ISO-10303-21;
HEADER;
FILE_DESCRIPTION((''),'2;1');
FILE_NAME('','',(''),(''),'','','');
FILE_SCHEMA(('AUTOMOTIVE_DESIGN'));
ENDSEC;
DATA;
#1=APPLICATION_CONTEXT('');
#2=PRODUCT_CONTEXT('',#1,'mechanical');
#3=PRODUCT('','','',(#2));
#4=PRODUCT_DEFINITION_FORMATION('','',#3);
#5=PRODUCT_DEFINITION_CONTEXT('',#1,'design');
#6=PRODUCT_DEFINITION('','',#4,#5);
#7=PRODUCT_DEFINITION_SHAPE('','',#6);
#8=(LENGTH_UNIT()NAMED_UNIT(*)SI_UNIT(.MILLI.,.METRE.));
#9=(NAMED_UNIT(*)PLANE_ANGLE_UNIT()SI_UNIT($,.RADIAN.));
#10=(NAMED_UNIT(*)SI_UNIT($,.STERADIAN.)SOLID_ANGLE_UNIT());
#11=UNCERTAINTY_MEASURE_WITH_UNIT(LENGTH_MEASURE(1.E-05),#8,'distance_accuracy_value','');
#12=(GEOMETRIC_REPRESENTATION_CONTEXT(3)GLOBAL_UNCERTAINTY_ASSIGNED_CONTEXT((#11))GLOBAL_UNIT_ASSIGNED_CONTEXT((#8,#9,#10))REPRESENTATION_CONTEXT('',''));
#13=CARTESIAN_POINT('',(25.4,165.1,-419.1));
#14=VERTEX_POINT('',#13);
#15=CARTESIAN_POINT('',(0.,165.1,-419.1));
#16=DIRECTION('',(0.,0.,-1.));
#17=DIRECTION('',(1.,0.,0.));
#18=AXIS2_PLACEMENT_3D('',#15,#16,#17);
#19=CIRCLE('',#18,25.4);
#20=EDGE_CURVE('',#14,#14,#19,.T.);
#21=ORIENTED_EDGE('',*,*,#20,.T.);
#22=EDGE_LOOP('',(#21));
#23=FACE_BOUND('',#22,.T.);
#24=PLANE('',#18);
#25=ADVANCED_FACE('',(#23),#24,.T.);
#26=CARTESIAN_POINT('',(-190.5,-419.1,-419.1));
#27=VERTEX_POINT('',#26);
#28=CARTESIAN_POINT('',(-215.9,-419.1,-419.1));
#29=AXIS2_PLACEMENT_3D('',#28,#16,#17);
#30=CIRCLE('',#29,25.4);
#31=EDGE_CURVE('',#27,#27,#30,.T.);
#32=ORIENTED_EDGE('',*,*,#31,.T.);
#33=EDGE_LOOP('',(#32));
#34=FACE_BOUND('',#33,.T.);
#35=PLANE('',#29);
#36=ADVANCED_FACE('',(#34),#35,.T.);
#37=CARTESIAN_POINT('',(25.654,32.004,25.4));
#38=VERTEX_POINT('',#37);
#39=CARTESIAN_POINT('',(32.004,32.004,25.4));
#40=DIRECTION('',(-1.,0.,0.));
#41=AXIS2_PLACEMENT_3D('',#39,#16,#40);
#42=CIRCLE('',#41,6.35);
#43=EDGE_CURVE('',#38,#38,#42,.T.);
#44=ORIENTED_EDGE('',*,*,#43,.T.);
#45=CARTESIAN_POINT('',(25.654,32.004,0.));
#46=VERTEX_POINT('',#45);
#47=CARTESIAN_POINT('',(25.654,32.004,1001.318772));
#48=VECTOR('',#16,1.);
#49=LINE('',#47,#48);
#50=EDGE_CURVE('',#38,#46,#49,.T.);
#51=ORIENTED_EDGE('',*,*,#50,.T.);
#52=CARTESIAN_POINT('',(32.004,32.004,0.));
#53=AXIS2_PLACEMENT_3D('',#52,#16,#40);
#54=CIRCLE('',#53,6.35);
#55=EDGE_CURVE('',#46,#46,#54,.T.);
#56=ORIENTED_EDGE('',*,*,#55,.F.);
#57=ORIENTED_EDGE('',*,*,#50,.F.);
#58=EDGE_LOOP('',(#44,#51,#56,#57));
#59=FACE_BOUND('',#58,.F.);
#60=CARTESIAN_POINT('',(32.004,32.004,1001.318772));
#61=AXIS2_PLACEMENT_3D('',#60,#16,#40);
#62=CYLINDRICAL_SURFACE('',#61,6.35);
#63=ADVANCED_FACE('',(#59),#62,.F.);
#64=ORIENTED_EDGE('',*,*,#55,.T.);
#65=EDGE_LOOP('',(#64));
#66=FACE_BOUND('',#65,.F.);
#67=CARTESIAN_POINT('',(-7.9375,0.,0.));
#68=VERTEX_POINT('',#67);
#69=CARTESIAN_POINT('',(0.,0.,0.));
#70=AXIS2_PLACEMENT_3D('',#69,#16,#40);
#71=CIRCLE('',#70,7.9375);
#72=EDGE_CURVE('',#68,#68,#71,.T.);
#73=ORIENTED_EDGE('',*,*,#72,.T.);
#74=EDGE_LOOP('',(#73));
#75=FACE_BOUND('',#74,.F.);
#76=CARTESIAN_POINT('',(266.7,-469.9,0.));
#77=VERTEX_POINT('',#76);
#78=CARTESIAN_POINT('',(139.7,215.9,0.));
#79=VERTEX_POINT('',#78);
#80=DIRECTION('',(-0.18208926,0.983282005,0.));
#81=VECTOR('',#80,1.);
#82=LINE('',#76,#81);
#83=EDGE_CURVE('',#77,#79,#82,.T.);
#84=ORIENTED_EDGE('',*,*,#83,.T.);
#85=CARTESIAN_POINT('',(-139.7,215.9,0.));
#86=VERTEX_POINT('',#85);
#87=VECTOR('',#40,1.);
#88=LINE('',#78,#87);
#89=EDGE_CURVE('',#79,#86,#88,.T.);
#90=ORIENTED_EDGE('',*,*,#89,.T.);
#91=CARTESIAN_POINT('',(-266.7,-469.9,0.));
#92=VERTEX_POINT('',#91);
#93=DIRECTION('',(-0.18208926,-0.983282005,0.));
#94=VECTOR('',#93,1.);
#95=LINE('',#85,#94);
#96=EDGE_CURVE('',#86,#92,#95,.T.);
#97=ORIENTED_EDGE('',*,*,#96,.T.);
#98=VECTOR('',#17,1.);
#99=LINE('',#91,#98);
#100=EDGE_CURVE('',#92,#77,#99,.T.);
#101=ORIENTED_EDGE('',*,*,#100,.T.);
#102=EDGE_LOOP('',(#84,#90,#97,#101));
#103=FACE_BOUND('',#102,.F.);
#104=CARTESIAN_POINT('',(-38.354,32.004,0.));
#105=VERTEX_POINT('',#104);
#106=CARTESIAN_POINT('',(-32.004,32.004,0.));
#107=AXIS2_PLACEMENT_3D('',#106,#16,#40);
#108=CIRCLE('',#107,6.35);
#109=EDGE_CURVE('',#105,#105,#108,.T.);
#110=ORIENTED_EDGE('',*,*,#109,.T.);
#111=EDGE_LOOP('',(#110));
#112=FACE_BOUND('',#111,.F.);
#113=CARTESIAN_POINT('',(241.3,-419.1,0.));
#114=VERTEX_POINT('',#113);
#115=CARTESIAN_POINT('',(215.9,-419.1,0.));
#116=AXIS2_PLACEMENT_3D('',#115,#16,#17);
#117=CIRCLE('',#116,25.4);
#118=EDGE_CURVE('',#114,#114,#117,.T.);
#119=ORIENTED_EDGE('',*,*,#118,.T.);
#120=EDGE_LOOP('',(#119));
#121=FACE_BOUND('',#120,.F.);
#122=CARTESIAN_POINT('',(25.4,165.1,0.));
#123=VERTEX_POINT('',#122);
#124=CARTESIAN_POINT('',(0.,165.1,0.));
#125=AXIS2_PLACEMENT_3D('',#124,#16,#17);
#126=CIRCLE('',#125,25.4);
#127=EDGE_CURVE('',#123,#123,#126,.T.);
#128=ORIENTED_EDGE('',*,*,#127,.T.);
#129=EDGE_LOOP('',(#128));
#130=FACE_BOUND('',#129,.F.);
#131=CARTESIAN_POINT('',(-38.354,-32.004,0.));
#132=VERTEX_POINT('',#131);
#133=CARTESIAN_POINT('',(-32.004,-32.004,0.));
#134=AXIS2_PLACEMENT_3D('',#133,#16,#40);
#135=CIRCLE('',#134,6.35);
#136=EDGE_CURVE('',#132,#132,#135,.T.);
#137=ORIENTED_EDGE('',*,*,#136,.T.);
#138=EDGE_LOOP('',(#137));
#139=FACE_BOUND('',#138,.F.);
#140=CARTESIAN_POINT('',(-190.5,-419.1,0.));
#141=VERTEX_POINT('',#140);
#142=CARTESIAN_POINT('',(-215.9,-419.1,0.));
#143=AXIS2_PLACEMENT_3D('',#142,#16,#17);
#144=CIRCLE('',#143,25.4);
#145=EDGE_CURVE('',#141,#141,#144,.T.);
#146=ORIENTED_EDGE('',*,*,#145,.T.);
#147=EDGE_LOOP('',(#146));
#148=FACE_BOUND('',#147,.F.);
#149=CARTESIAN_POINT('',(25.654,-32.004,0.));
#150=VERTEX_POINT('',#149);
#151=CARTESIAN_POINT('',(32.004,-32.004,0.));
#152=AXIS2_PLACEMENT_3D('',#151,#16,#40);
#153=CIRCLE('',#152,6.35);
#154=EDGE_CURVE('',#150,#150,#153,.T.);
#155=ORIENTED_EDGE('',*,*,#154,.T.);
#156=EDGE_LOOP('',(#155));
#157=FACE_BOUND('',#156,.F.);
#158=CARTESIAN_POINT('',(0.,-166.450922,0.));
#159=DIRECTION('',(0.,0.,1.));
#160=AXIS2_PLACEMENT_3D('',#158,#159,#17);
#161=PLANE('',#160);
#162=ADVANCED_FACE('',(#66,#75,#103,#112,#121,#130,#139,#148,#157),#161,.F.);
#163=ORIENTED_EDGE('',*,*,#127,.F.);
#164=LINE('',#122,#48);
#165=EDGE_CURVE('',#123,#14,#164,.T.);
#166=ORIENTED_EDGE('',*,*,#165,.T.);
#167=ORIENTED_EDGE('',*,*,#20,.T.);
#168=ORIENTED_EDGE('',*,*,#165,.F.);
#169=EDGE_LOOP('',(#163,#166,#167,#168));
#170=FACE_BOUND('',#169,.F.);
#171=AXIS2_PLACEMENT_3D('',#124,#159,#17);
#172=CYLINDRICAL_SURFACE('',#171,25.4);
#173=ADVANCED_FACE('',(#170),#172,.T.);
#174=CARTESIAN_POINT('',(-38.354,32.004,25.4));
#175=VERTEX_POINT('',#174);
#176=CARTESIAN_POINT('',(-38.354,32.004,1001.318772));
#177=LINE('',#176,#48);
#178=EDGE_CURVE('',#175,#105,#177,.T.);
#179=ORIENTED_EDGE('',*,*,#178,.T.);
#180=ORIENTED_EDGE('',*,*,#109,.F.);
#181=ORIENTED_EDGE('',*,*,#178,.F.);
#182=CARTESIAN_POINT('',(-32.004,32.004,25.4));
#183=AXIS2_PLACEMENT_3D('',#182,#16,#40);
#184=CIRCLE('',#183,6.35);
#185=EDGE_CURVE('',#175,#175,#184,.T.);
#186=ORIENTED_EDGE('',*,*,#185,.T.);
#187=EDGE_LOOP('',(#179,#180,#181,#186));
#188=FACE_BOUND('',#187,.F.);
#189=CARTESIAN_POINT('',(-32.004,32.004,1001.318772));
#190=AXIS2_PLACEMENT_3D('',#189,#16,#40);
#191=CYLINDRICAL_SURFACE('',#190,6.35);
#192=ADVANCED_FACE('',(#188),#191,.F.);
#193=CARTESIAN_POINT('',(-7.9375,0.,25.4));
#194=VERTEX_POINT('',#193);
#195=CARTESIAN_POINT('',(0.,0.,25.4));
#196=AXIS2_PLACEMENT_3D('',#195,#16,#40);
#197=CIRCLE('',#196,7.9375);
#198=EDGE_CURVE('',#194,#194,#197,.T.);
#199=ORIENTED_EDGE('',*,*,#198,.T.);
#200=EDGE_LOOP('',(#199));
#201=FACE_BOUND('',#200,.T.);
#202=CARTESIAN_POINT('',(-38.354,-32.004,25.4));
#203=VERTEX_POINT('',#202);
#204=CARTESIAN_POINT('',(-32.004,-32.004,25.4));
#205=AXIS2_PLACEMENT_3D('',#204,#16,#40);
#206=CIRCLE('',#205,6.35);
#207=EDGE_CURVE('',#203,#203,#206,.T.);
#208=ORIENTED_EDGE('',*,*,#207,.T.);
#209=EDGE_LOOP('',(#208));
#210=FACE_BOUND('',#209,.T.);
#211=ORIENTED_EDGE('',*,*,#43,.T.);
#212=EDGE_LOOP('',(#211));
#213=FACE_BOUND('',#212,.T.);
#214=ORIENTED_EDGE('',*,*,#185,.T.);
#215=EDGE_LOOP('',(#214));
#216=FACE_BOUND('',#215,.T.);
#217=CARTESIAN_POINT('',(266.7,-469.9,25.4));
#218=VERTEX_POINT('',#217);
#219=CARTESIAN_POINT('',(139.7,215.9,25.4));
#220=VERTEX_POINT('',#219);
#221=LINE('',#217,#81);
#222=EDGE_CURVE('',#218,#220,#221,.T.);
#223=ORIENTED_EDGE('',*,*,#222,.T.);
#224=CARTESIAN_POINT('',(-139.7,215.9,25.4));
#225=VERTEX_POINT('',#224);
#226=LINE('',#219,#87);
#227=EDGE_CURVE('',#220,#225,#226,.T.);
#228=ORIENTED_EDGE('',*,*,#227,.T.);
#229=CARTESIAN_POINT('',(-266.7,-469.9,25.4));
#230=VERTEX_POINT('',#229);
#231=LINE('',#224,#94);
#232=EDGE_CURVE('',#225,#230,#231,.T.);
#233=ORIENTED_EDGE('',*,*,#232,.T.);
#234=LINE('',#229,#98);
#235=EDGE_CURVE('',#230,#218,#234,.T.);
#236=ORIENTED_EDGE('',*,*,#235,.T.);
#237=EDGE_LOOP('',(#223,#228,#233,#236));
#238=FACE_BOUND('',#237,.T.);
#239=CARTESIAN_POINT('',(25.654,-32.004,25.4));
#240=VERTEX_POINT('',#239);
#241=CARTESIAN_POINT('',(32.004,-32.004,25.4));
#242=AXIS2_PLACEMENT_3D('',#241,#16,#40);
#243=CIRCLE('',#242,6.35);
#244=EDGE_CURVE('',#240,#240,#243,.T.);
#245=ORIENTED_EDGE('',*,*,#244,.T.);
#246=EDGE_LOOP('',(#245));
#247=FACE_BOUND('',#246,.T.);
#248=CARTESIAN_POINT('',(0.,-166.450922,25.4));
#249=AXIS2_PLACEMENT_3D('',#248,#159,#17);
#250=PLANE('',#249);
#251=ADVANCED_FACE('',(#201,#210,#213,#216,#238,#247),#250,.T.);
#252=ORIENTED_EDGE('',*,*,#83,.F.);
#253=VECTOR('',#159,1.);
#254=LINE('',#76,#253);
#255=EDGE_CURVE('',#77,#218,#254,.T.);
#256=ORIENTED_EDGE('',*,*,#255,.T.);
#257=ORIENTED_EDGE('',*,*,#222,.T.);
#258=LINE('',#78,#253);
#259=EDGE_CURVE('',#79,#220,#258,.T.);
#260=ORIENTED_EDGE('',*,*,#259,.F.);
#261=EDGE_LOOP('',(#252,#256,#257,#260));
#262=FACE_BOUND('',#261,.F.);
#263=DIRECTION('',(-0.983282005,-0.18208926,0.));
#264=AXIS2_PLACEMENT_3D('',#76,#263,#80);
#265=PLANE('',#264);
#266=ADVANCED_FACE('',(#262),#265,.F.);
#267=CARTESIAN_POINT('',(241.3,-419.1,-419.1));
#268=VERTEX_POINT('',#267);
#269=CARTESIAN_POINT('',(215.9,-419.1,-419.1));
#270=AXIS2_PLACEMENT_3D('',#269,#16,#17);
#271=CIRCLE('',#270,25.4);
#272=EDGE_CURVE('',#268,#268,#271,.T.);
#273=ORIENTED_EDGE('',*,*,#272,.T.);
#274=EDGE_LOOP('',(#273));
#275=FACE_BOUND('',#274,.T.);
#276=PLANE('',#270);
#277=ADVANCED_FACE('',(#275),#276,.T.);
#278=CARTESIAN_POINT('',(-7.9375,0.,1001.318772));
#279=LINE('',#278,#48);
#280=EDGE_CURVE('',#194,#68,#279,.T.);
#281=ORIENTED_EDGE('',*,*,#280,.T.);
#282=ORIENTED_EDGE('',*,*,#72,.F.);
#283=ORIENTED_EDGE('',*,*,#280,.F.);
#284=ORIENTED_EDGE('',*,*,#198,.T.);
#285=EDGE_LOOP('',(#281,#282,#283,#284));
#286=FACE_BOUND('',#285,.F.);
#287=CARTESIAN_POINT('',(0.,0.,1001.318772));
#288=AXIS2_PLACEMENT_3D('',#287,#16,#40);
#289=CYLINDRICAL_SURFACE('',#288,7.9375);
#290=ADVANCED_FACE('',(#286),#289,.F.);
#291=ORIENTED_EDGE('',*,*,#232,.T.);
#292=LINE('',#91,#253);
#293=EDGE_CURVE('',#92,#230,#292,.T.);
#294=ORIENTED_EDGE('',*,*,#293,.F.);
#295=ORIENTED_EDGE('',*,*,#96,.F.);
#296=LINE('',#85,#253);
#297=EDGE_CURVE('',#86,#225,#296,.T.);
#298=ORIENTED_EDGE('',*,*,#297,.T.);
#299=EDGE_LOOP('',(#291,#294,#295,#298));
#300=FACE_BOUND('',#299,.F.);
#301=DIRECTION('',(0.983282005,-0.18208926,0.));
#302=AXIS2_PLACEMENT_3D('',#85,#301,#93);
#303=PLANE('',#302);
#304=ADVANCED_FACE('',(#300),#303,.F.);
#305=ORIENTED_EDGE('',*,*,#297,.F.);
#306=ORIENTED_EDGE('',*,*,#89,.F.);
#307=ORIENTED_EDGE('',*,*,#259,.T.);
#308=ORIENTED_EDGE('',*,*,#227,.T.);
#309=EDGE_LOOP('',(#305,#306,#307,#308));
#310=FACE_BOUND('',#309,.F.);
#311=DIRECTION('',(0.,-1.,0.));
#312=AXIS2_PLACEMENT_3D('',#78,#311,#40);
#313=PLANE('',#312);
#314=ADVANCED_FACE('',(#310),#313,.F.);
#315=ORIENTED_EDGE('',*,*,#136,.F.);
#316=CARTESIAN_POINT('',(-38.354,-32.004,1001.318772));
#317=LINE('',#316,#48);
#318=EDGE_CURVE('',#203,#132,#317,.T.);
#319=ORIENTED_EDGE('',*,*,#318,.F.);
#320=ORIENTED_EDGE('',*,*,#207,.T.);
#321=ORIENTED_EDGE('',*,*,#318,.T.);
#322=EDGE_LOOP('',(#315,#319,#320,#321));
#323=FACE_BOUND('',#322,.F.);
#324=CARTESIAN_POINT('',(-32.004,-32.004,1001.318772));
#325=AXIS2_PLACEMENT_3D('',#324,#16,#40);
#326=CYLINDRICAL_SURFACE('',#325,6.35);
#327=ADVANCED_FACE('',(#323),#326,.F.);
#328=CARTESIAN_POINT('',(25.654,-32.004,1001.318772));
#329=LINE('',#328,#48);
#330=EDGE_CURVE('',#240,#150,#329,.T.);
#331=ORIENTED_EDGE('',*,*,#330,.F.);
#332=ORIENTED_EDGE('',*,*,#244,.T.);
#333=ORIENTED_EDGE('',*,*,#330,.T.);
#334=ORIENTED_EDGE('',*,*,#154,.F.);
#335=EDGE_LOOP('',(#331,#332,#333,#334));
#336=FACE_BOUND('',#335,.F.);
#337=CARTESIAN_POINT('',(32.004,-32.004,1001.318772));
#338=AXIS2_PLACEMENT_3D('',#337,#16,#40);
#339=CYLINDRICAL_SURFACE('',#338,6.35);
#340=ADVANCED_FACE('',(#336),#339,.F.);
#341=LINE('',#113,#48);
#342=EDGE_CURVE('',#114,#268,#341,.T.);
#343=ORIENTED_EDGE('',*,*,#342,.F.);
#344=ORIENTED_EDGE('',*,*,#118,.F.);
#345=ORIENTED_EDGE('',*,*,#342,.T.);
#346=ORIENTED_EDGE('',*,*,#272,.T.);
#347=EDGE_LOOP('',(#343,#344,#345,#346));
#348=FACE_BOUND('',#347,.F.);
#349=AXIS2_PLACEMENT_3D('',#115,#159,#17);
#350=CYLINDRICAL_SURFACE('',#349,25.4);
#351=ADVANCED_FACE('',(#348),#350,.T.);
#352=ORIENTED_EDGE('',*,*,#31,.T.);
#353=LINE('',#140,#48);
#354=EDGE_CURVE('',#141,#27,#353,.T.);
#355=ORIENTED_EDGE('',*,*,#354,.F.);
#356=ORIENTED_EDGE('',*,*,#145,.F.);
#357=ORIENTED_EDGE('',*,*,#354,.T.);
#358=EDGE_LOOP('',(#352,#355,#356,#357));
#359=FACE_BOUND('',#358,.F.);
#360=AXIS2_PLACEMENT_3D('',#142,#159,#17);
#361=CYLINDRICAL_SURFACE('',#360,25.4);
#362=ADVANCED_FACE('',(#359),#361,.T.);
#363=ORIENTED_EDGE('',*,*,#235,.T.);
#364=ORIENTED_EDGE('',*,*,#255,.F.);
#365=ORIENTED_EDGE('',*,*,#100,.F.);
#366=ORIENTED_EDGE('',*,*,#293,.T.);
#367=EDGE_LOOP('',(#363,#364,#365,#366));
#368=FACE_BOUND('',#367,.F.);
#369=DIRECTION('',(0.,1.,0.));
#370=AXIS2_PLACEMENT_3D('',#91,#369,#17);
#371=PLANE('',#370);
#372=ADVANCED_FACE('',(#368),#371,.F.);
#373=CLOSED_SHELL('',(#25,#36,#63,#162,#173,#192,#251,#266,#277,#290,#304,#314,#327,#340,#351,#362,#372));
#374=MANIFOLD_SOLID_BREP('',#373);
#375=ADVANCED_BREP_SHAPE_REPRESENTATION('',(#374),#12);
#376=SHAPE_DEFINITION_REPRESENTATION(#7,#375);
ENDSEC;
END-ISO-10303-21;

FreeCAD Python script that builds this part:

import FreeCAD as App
import Part
import Sketcher
from FreeCAD import Vector
Q = App.Units.Quantity

doc = App.newDocument("Part")
body = doc.addObject("PartDesign::Body", "Body")

# Sketch on XY plane
sketch1 = body.newObject("Sketcher::SketchObject", "Sketch")
sketch1.AttachmentSupport = (doc.getObject("XY_Plane"), [""])
sketch1.MapMode = "FlatFace"
sketch1.addGeometry([
    Part.LineSegment(Vector(140, 216, 0), Vector(-140, 216, 0)),
    Part.LineSegment(Vector(-140, 216, 0), Vector(-267, -470, 0)),
    Part.LineSegment(Vector(-267, -470, 0), Vector(267, -470, 0)),
    Part.LineSegment(Vector(267, -470, 0), Vector(140, 216, 0)),
], False)
sketch1.addConstraint([
    Sketcher.Constraint("Coincident", 0, 2, 1, 1),
    Sketcher.Constraint("Coincident", 1, 2, 2, 1),
    Sketcher.Constraint("Coincident", 2, 2, 3, 1),
    Sketcher.Constraint("Coincident", 3, 2, 0, 1),
    Sketcher.Constraint("Horizontal", 0),
    Sketcher.Constraint("Horizontal", 2),
    Sketcher.Constraint("Equal", 1, 3),
    Sketcher.Constraint("DistanceX", 0, 2, 0, 1, Q("11 in")),
    Sketcher.Constraint("DistanceX", 2, 1, 2, 2, Q("21 in")),
    Sketcher.Constraint("DistanceY", 1, 2, 0, 2, Q("27 in")),
    Sketcher.Constraint("DistanceX", 0, 2, -1, 1, Q("5.5 in")),
    Sketcher.Constraint("DistanceY", -1, 1, 0, 2, Q("8.5 in")),
])
pad1 = body.newObject("PartDesign::Pad", "Pad")
pad1.Profile = sketch1
pad1.Length = Q("1 in")

# Sketch on XY plane
sketch2 = body.newObject("Sketcher::SketchObject", "Sketch001")
sketch2.AttachmentSupport = (doc.getObject("XY_Plane"), [""])
sketch2.MapMode = "FlatFace"
sketch2.addGeometry([
    Part.Circle(Vector(-216, -419, 0), Vector(0, 0, 1), 25),
    Part.Circle(Vector(216, -419, 0), Vector(0, 0, 1), 25),
    Part.Circle(Vector(0, 165, 0), Vector(0, 0, 1), 25),
], False)
sketch2.addConstraint([
    Sketcher.Constraint("Equal", 0, 1),
    Sketcher.Constraint("Equal", 1, 2),
    Sketcher.Constraint("Symmetric", 0, 3, 1, 3, -2),
    Sketcher.Constraint("PointOnObject", 2, 3, -2),
    Sketcher.Constraint("Diameter", 0, Q("2 in")),
    Sketcher.Constraint("DistanceX", 0, 3, 1, 3, Q("17 in")),
    Sketcher.Constraint("DistanceY", 0, 3, 2, 3, Q("23 in")),
    Sketcher.Constraint("DistanceY", 0, 3, -1, 1, Q("16.5 in")),
])
pad2 = body.newObject("PartDesign::Pad", "Pad001")
pad2.Profile = sketch2
pad2.Length = Q("16.5 in")
pad2.Reversed = True

# Sketch on XY plane
sketch3 = body.newObject("Sketcher::SketchObject", "Sketch002")
sketch3.AttachmentSupport = (doc.getObject("XY_Plane"), [""])
sketch3.MapMode = "FlatFace"
sketch3.AttachmentOffset = App.Placement(Vector(0, 0, 1 * 25.4), App.Rotation())
sketch3.addGeometry(Part.Circle(Vector(0, 0, 0), Vector(0, 0, 1), 8), False)
sketch3.addConstraint([
    Sketcher.Constraint("Coincident", 0, 3, -1, 1),
    Sketcher.Constraint("Diameter", 0, Q("0.625 in")),
])
doc.recompute()
hole = body.newObject("PartDesign::Hole", "Hole")
hole.Profile = sketch3
hole.ThreadType = "None"
hole.Diameter = Q("0.625 in")
hole.DepthType = "ThroughAll"

# Sketch on XY plane
sketch4 = body.newObject("Sketcher::SketchObject", "Sketch003")
sketch4.AttachmentSupport = (doc.getObject("XY_Plane"), [""])
sketch4.MapMode = "FlatFace"
sketch4.AttachmentOffset = App.Placement(Vector(0, 0, 1 * 25.4), App.Rotation())
sketch4.addGeometry([
    Part.Circle(Vector(32, -32, 0), Vector(0, 0, 1), 6),
    Part.Circle(Vector(-32, -32, 0), Vector(0, 0, 1), 6),
    Part.Circle(Vector(32, 32, 0), Vector(0, 0, 1), 6),
    Part.Circle(Vector(-32, 32, 0), Vector(0, 0, 1), 6),
], False)
sketch4.addConstraint([
    Sketcher.Constraint("Equal", 0, 1),
    Sketcher.Constraint("Equal", 1, 2),
    Sketcher.Constraint("Equal", 2, 3),
    Sketcher.Constraint("Symmetric", 1, 3, 2, 3, -1, 1),
    Sketcher.Constraint("Symmetric", 0, 3, 3, 3, -1, 1),
    Sketcher.Constraint("Symmetric", 0, 3, 1, 3, -2),
    Sketcher.Constraint("Diameter", 0, Q("0.5 in")),
    Sketcher.Constraint("DistanceX", -1, 1, 0, 3, Q("1.26 in")),
    Sketcher.Constraint("DistanceY", 0, 3, -1, 1, Q("1.26 in")),
])
doc.recompute()
hole2 = body.newObject("PartDesign::Hole", "Hole001")
hole2.Profile = sketch4
hole2.ThreadType = "None"
hole2.Diameter = Q("0.5 in")
hole2.DepthType = "ThroughAll"

doc.recompute()
